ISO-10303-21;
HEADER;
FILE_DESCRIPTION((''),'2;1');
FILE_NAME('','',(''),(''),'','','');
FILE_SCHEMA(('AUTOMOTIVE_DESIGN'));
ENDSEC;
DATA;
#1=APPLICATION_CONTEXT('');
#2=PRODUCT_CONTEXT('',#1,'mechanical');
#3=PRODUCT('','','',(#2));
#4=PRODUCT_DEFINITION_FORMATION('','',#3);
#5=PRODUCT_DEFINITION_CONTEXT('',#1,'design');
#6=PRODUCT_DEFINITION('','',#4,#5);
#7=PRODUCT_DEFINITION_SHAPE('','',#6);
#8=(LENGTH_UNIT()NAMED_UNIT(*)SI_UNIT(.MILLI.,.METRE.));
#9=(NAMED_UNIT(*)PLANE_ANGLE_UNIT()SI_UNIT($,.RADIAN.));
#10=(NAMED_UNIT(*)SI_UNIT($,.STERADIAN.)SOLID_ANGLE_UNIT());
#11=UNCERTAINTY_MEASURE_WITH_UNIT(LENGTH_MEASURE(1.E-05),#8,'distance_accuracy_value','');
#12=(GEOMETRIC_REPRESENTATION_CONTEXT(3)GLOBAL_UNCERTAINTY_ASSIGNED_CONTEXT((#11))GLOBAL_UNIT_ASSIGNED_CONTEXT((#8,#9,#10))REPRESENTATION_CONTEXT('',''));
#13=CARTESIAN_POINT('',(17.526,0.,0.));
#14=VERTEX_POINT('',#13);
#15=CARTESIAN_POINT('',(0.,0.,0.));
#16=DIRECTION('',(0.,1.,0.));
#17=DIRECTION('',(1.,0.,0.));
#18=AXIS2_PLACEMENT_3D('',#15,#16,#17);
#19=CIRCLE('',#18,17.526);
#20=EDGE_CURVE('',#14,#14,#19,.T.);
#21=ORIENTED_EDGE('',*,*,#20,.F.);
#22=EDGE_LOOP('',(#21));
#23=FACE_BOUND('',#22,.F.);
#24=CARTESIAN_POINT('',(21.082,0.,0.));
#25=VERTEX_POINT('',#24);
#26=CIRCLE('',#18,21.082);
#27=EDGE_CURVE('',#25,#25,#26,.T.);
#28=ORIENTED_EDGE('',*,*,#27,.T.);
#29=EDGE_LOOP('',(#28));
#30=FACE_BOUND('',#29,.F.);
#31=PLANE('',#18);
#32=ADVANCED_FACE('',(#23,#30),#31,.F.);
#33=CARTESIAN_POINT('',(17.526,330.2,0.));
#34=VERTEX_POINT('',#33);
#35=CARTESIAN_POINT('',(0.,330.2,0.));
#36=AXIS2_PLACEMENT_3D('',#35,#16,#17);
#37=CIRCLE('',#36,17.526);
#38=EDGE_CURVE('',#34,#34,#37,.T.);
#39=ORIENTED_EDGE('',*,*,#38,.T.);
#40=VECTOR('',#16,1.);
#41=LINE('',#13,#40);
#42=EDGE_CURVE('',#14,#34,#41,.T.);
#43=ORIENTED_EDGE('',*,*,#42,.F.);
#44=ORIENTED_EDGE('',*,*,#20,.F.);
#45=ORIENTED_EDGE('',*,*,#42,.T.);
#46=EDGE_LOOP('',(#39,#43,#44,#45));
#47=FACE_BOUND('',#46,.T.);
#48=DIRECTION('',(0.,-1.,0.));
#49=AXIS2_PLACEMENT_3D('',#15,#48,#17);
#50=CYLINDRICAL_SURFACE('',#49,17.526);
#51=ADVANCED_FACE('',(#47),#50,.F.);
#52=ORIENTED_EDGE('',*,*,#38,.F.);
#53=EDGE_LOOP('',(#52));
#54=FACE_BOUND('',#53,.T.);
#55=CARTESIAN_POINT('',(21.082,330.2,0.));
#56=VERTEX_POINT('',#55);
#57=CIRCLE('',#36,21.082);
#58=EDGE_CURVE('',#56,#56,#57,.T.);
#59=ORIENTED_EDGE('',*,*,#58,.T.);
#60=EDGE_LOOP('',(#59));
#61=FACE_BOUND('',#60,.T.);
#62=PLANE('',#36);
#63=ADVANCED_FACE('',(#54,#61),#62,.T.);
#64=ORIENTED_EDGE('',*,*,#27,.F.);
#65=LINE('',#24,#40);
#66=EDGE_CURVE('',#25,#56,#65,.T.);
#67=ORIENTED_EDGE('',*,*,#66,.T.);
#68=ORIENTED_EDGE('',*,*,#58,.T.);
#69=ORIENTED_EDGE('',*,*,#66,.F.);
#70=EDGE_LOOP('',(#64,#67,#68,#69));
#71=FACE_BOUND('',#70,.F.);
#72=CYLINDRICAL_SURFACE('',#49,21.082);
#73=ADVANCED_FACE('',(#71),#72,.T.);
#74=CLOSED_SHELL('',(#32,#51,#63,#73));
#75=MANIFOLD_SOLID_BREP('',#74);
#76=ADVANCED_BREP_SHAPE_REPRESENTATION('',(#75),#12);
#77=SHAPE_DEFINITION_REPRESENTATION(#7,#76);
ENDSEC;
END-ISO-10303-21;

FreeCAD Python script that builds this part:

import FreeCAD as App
import Part
import Sketcher

V = App.Vector
Q = App.Units.Quantity

doc = App.newDocument("Part")
body = doc.addObject("PartDesign::Body", "Body")

sketch1 = body.newObject("Sketcher::SketchObject", "Sketch")
sketch1.AttachmentSupport = (doc.getObject("XZ_Plane"), [""])
sketch1.MapMode = "FlatFace"
sketch1.addGeometry([
    Part.Circle(V(0, 0, 0), V(0, 0, 1), 21),
    Part.Circle(V(0, 0, 0), V(0, 0, 1), 18),
], False)
sketch1.addConstraint([
    Sketcher.Constraint("Coincident", 0, 3, -1, 1),
    Sketcher.Constraint("Coincident", 1, 3, -1, 1),
    Sketcher.Constraint("Diameter", 0, Q("1.66 in")),
    Sketcher.Constraint("Diameter", 1, Q("1.38 in")),
])
pad1 = body.newObject("PartDesign::Pad", "Pad")
pad1.Profile = sketch1
pad1.Length = Q("13 in")
pad1.Reversed = True

doc.recompute()
